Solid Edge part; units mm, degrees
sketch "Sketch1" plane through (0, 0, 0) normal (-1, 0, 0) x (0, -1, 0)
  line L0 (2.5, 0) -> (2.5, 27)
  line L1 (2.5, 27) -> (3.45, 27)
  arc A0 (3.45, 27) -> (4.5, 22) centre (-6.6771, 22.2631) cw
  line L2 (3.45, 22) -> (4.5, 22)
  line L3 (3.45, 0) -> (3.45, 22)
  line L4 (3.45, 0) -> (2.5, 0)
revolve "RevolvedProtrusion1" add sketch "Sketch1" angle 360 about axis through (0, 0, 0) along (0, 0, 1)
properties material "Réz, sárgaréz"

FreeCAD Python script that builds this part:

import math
import FreeCAD as App
import Part
import Sketcher
from FreeCAD import Vector

doc = App.newDocument("Part")
body = doc.addObject("PartDesign::Body", "Body")

sketch1 = doc.addObject("Sketcher::SketchObject", "Sketch")
body.addObject(sketch1)
sketch1.AttachmentSupport = (doc.YZ_Plane, [""])
sketch1.MapMode = "FlatFace"
sketch1.addGeometry(Part.LineSegment(Vector(-2.5, 27, 0), Vector(-2.5, 0, 0)), False)
sketch1.addGeometry(Part.LineSegment(Vector(-2.5, 0, 0), Vector(-3.45, 0, 0)), False)
sketch1.addGeometry(Part.LineSegment(Vector(-3.45, 0, 0), Vector(-3.45, 22, 0)), False)
sketch1.addGeometry(Part.LineSegment(Vector(-3.45, 22, 0), Vector(-4.5, 22, 0)), False)
sketch1.addGeometry(Part.ArcOfCircle(Part.Circle(Vector(6.6771, 22.2631, 0), Vector(0, 0, 1), 11.180178), math.radians(154.932394), math.radians(181.348448)), False)
sketch1.addGeometry(Part.LineSegment(Vector(-3.45, 27, 0), Vector(-2.5, 27, 0)), False)
sketch1.addConstraint(Sketcher.Constraint("Coincident", 0, 2, 1, 1))
sketch1.addConstraint(Sketcher.Constraint("Coincident", 1, 2, 2, 1))
sketch1.addConstraint(Sketcher.Constraint("Coincident", 2, 2, 3, 1))
sketch1.addConstraint(Sketcher.Constraint("Coincident", 3, 2, 4, 2))
sketch1.addConstraint(Sketcher.Constraint("Coincident", 4, 1, 5, 1))
sketch1.addConstraint(Sketcher.Constraint("Coincident", 5, 2, 0, 1))
sketch1.addConstraint(Sketcher.Constraint("Vertical", 0))
sketch1.addConstraint(Sketcher.Constraint("Horizontal", 1))
sketch1.addConstraint(Sketcher.Constraint("Vertical", 2))
sketch1.addConstraint(Sketcher.Constraint("Horizontal", 3))
sketch1.addConstraint(Sketcher.Constraint("Horizontal", 5))
sketch1.addConstraint(Sketcher.Constraint("PointOnObject", 0, 2, -1))
sketch1.addConstraint(Sketcher.Constraint("Vertical", 2, 2, 4, 1))
sketch1.addConstraint(Sketcher.Constraint("DistanceY", 0, 2, 0, 1, 27.0))
sketch1.addConstraint(Sketcher.Constraint("DistanceY", 2, 1, 2, 2, 22.0))
sketch1.addConstraint(Sketcher.Constraint("DistanceX", 3, 2, 0, 2, 2.0))
sketch1.addConstraint(Sketcher.Constraint("DistanceX", 1, 2, 1, 1, 0.95))
sketch1.addConstraint(Sketcher.Constraint("DistanceX", 0, 2, -1, 1, 2.5))
sketch1.addConstraint(Sketcher.Constraint("Radius", 4, 11.1802))
revolution = doc.addObject("PartDesign::Revolution", "Revolution")
body.addObject(revolution)
revolution.Profile = sketch1
revolution.ReferenceAxis = (sketch1, ["V_Axis"])
revolution.Angle = 360

doc.recompute()
